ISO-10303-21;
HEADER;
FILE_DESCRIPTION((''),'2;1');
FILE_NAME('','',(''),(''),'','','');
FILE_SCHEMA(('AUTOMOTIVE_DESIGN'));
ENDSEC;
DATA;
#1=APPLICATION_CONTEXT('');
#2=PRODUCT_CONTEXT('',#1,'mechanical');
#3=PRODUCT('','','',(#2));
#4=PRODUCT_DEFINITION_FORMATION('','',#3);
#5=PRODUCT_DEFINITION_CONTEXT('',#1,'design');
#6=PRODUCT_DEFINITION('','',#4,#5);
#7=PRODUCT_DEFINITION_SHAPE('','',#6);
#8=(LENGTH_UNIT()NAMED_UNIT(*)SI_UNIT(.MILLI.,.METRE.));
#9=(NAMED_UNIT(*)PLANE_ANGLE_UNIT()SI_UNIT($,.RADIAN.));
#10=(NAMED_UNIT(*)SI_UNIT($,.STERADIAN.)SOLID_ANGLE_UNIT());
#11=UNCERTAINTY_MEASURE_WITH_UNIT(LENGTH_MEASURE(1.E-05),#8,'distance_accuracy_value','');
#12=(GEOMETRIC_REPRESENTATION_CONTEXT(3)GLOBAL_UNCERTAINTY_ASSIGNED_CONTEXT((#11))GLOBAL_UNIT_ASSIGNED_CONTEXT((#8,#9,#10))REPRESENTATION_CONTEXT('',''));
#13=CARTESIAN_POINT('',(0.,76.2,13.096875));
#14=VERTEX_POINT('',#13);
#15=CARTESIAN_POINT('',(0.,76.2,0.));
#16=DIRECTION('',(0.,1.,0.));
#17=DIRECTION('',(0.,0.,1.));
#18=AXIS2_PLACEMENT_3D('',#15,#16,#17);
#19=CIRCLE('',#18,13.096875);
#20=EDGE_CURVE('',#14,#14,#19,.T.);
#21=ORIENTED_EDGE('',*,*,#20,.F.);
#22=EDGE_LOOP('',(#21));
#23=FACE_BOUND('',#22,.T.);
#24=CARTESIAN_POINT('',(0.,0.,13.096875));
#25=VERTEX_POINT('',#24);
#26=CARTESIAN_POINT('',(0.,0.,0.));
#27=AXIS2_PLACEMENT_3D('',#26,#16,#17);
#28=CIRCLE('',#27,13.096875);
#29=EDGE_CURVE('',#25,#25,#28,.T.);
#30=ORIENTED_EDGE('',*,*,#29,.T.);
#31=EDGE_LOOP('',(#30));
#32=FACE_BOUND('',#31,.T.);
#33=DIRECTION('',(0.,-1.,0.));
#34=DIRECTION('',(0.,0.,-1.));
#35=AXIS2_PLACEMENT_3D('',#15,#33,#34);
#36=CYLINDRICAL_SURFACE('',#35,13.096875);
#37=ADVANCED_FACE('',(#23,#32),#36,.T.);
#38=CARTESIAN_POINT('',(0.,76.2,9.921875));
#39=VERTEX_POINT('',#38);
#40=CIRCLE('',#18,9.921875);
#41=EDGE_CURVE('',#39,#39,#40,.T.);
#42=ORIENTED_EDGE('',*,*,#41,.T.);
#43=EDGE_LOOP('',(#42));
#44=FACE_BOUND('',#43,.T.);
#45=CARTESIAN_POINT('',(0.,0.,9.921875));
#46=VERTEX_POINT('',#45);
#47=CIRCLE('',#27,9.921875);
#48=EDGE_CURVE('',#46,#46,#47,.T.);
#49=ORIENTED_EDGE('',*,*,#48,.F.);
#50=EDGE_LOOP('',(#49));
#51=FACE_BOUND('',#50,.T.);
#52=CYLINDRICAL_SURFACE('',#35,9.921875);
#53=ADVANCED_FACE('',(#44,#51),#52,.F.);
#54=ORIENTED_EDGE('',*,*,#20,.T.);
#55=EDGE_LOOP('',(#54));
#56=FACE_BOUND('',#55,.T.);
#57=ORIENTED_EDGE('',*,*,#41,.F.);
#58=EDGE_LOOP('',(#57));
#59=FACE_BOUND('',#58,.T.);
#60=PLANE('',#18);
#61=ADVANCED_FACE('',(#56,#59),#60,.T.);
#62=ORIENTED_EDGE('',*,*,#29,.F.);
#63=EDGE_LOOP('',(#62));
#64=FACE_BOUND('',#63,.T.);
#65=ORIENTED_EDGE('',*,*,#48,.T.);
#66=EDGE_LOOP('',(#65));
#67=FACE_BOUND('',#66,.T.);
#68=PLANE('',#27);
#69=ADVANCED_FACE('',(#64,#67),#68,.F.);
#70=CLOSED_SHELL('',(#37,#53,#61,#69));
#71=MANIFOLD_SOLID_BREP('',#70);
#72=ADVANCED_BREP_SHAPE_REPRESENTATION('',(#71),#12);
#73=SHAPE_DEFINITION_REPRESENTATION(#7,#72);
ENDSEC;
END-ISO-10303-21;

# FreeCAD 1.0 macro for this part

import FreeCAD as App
import Part
import Sketcher

V = App.Vector
Q = App.Units.Quantity

doc = App.newDocument("Part")
body = doc.addObject("PartDesign::Body", "Body")

sketch1 = body.newObject("Sketcher::SketchObject", "Sketch")
sketch1.AttachmentSupport = (doc.getObject("XZ_Plane"), [""])
sketch1.MapMode = "FlatFace"
sketch1.addGeometry([
    Part.Circle(V(0, 0, 0), V(0, 0, 1), 13),
    Part.Circle(V(0, 0, 0), V(0, 0, 1), 10),
], False)
sketch1.addConstraint([
    Sketcher.Constraint("Coincident", 0, 3, -1, 1),
    Sketcher.Constraint("Coincident", 1, 3, -1, 1),
    Sketcher.Constraint("Diameter", 0, Q("1.03125 in")),
    Sketcher.Constraint("Diameter", 1, Q("0.78125 in")),
])
pad1 = body.newObject("PartDesign::Pad", "Pad")
pad1.Profile = sketch1
pad1.Length = Q("3 in")
pad1.Reversed = True

doc.recompute()
